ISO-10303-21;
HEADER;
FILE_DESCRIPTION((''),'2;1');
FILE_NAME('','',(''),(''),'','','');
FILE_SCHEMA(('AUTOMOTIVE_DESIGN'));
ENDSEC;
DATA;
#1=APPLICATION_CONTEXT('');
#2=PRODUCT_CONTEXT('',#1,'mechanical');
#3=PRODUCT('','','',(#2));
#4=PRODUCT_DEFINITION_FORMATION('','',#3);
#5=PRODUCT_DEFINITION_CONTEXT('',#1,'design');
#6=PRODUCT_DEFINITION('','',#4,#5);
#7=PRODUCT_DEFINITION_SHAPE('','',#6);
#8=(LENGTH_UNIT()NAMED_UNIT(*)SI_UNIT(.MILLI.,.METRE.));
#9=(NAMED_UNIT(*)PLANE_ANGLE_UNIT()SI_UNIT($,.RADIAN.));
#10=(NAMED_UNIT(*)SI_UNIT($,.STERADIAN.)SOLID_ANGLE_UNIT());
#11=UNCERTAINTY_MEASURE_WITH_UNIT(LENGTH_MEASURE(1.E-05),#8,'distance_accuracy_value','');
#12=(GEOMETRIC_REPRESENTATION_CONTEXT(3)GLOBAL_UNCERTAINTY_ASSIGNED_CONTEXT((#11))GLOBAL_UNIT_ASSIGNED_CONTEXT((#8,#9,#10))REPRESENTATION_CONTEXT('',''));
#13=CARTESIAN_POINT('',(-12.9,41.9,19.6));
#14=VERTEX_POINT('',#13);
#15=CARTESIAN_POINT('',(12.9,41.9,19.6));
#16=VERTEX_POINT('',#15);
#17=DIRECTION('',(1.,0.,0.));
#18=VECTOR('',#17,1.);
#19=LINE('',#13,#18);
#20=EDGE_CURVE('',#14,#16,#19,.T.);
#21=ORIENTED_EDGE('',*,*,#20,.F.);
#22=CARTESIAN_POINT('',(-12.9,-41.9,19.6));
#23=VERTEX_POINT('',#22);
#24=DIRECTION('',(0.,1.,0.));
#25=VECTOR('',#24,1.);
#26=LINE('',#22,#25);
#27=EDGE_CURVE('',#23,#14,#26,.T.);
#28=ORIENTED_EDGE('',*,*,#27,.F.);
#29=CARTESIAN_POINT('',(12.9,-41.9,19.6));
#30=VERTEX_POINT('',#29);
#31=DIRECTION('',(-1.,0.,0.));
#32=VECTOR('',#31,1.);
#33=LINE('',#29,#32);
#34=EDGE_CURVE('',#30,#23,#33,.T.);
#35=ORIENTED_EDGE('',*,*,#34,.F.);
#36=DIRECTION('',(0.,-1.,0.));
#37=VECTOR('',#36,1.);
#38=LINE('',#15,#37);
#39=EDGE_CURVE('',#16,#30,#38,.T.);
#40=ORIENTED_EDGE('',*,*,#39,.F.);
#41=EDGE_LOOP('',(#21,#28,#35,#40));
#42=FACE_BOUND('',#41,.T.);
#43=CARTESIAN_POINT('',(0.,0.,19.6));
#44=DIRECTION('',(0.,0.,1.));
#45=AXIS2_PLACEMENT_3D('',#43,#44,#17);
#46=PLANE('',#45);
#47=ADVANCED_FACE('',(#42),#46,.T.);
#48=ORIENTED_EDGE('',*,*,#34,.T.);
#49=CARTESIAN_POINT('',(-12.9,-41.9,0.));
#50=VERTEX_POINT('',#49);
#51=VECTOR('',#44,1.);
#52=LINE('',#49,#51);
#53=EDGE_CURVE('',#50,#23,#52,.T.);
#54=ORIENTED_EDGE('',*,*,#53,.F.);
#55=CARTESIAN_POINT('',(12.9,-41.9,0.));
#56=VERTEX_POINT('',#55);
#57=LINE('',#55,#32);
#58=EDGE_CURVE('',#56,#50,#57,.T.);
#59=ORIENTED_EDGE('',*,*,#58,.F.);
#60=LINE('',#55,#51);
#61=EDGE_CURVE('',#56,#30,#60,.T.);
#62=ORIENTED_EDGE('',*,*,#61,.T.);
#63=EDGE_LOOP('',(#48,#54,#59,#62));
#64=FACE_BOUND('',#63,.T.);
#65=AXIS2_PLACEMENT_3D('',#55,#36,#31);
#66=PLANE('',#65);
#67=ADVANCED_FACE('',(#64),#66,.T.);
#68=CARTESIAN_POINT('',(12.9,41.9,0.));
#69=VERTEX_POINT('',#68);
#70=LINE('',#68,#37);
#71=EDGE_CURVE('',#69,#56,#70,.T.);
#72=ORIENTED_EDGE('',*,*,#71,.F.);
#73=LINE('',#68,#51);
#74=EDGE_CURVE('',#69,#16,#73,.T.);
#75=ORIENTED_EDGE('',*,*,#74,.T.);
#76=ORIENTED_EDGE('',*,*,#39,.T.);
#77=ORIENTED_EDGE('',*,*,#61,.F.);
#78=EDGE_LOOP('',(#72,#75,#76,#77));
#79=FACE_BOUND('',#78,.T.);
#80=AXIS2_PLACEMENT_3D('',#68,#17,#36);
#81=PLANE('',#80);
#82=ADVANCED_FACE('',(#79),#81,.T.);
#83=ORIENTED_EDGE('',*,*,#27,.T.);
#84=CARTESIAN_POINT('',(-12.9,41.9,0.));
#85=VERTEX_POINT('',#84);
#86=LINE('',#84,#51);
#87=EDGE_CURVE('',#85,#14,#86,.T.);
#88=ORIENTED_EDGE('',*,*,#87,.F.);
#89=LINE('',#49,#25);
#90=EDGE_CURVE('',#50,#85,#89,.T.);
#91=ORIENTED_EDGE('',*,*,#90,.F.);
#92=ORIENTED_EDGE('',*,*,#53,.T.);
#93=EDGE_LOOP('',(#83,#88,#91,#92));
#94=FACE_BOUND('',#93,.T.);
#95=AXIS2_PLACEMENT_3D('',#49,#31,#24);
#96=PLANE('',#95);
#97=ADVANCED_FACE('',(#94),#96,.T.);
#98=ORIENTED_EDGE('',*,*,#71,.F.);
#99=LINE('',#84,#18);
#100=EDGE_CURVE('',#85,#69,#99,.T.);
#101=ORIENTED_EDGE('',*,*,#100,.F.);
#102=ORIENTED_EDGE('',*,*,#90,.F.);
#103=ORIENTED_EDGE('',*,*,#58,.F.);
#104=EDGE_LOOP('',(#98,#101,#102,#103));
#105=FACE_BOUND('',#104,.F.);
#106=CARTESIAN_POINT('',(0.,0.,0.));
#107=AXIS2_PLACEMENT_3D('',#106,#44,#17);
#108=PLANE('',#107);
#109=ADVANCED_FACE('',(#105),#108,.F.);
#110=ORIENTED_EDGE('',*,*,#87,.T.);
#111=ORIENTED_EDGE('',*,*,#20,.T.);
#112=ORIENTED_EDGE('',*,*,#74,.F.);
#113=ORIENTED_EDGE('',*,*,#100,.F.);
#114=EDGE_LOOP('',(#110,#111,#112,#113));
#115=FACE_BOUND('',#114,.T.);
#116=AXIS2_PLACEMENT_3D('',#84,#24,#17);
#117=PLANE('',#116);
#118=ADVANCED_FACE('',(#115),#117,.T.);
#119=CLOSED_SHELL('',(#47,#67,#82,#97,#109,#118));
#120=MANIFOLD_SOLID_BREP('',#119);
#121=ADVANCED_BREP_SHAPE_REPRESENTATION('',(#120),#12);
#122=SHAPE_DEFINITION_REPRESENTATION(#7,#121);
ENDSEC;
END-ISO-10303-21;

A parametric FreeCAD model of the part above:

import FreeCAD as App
import Part
import Sketcher

V = App.Vector

doc = App.newDocument("Part")
body = doc.addObject("PartDesign::Body", "Body")

# Sketch on XY plane
sketch1 = body.newObject("Sketcher::SketchObject", "Sketch")
sketch1.AttachmentSupport = (doc.getObject("XY_Plane"), [""])
sketch1.MapMode = "FlatFace"
sketch1.addGeometry([
    Part.LineSegment(V(12.9, 41.9, 0), V(-12.9, 41.9, 0)),
    Part.LineSegment(V(-12.9, 41.9, 0), V(-12.9, -41.9, 0)),
    Part.LineSegment(V(-12.9, -41.9, 0), V(12.9, -41.9, 0)),
    Part.LineSegment(V(12.9, -41.9, 0), V(12.9, 41.9, 0)),
], False)
sketch1.addConstraint([
    Sketcher.Constraint("Coincident", 0, 2, 1, 1),
    Sketcher.Constraint("Coincident", 1, 2, 2, 1),
    Sketcher.Constraint("Coincident", 2, 2, 3, 1),
    Sketcher.Constraint("Coincident", 3, 2, 0, 1),
    Sketcher.Constraint("Horizontal", 0),
    Sketcher.Constraint("Vertical", 1),
    Sketcher.Constraint("Horizontal", 2),
    Sketcher.Constraint("Vertical", 3),
    Sketcher.Constraint("Symmetric", 0, 2, 2, 2, -1, 1),
    Sketcher.Constraint("DistanceX", 0, 2, 0, 1, 25.8),
    Sketcher.Constraint("DistanceY", 1, 2, 1, 1, 83.8),
])
pad1 = body.newObject("PartDesign::Pad", "Pad")
pad1.Profile = sketch1
pad1.Length = 19.6

doc.recompute()
